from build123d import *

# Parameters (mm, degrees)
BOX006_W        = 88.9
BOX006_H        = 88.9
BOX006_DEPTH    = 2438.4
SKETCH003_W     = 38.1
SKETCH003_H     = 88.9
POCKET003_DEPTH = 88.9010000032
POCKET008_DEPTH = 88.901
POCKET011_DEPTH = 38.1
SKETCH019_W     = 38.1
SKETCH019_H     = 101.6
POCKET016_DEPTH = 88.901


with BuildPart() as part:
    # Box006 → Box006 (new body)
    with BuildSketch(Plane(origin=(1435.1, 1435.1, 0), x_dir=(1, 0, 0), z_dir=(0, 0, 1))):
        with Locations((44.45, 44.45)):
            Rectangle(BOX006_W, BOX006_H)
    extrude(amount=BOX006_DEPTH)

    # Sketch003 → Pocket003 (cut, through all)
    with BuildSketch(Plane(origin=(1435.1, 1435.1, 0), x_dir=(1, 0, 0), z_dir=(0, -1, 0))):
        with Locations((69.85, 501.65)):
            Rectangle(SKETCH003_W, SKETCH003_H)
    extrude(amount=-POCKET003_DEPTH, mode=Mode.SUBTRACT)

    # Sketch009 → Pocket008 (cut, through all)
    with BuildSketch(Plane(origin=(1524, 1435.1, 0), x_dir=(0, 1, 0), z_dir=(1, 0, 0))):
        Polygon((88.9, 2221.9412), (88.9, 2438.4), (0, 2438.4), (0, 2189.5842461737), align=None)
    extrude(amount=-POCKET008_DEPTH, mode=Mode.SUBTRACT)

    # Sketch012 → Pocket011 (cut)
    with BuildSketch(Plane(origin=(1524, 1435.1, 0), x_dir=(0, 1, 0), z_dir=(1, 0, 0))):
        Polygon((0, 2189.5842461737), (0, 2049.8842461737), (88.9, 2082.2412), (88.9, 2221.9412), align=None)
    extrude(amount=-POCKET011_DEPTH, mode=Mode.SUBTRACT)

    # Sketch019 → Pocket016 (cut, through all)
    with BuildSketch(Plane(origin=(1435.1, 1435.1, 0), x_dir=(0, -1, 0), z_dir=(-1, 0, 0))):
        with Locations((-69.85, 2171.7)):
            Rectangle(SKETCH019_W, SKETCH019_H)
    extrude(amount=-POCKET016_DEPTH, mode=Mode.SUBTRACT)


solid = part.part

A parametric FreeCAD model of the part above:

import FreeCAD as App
import Part
import Sketcher

V = App.Vector
Q = App.Units.Quantity


def add_polygon(sketch, points):
    """Adds a closed chain of lines whose ends are joined by coincident constraints."""
    first, n = sketch.GeometryCount, len(points)
    for a, b in zip(points, points[1:] + points[:1]):
        sketch.addGeometry(Part.LineSegment(App.Vector(*a, 0), App.Vector(*b, 0)), False)
    for i in range(n):
        sketch.addConstraint(Sketcher.Constraint("Coincident", first + i, 2, first + (i + 1) % n, 1))

doc = App.newDocument("Part")
body = doc.addObject("PartDesign::Body", "Body")

# Sketch on XY plane
sketch1 = body.newObject("Sketcher::SketchObject", "Sketch")
sketch1.AttachmentSupport = (doc.getObject("XY_Plane"), [""])
sketch1.MapMode = "FlatFace"
add_polygon(sketch1, [(1435, 1524), (1435, 1435), (1524, 1435), (1524, 1524)])  # lines 0-3
sketch1.addConstraint([
    Sketcher.Constraint("Vertical", 0),
    Sketcher.Constraint("Horizontal", 1),
    Sketcher.Constraint("Vertical", 2),
    Sketcher.Constraint("Horizontal", 3),
    Sketcher.Constraint("Equal", 3, 0),
    Sketcher.Constraint("DistanceX", 1, 1, 1, 2, Q("3.5 in")),
    Sketcher.Constraint("DistanceX", -1, 1, 1, 2, Q("60 in")),
    Sketcher.Constraint("DistanceY", -1, 1, 2, 2, Q("60 in")),
])
pad1 = body.newObject("PartDesign::Pad", "Pad")
pad1.Profile = sketch1
pad1.Length = Q("96 in")

# Sketch on XZ plane
sketch2 = body.newObject("Sketcher::SketchObject", "Sketch001")
sketch2.AttachmentSupport = (doc.getObject("XZ_Plane"), [""])
sketch2.MapMode = "FlatFace"
sketch2.AttachmentOffset = App.Placement(V(0, 0, -56.5 * 25.4), App.Rotation())
add_polygon(sketch2, [(1486, 546), (1486, 457), (1524, 457), (1524, 546)])  # lines 0-3
sketch2.addConstraint([
    Sketcher.Constraint("Vertical", 0),
    Sketcher.Constraint("Horizontal", 1),
    Sketcher.Constraint("Vertical", 2),
    Sketcher.Constraint("Horizontal", 3),
    Sketcher.Constraint("DistanceX", 1, 1, 1, 2, Q("1.5 in")),
    Sketcher.Constraint("DistanceY", 0, 2, 0, 1, Q("3.5 in")),
    Sketcher.Constraint("DistanceY", -1, 1, 0, 2, Q("18 in")),
    Sketcher.Constraint("DistanceX", -1, 1, 1, 2, Q("60 in")),
])
pocket1 = body.newObject("PartDesign::Pocket", "Pocket")
pocket1.Profile = sketch2
pocket1.Type = "ThroughAll"

# Sketch on YZ plane
sketch3 = body.newObject("Sketcher::SketchObject", "Sketch002")
sketch3.AttachmentSupport = (doc.getObject("YZ_Plane"), [""])
sketch3.MapMode = "FlatFace"
sketch3.AttachmentOffset = App.Placement(V(0, 0, 60 * 25.4), App.Rotation())
add_polygon(sketch3, [(1524, 2222), (1524, 2438), (1435, 2438), (1435, 2190)])  # lines 0-3
sketch3.addConstraint([
    Sketcher.Constraint("Vertical", 0),
    Sketcher.Constraint("Horizontal", 1),
    Sketcher.Constraint("Vertical", 2),
    Sketcher.Constraint("DistanceX", 1, 2, 1, 1, Q("3.5 in")),
    Sketcher.Constraint("DistanceX", -1, 1, 0, 2, Q("60 in")),
    Sketcher.Constraint("DistanceY", -1, 1, 0, 2, Q("96 in")),
    Sketcher.Constraint("Angle", 3, Q("20 deg")),
    Sketcher.Constraint("DistanceY", 0, 1, 0, 2, Q("8.522 in")),
])
pocket2 = body.newObject("PartDesign::Pocket", "Pocket001")
pocket2.Profile = sketch3
pocket2.Type = "ThroughAll"

# Sketch on YZ plane
sketch4 = body.newObject("Sketcher::SketchObject", "Sketch003")
sketch4.AttachmentSupport = (doc.getObject("YZ_Plane"), [""])
sketch4.MapMode = "FlatFace"
sketch4.AttachmentOffset = App.Placement(V(0, 0, 60 * 25.4), App.Rotation())
add_polygon(sketch4, [(1435, 2190), (1435, 2050), (1524, 2082), (1524, 2222)])  # lines 0-3
sketch4.addConstraint([
    Sketcher.Constraint("Vertical", 0),
    Sketcher.Constraint("Vertical", 2),
    Sketcher.Constraint("Parallel", 1, 3),
    Sketcher.Constraint("DistanceY", 0, 2, 0, 1, Q("5.5 in")),
    Sketcher.Constraint("DistanceX", -1, 1, 1, 2, Q("60 in")),
    Sketcher.Constraint("Angle", 1, Q("20 deg")),
    Sketcher.Constraint("DistanceX", -1, 1, 0, 2, Q("56.5 in")),
    Sketcher.Constraint("DistanceY", -1, 1, 1, 2, Q("81.978 in")),
])
pocket3 = body.newObject("PartDesign::Pocket", "Pocket002")
pocket3.Profile = sketch4
pocket3.Length = Q("1.5 in")

# Sketch on YZ plane
sketch5 = body.newObject("Sketcher::SketchObject", "Sketch004")
sketch5.AttachmentSupport = (doc.getObject("YZ_Plane"), [""])
sketch5.MapMode = "FlatFace"
sketch5.AttachmentOffset = App.Placement(V(0, 0, 56.5 * 25.4), App.Rotation())
add_polygon(sketch5, [(1524, 2222), (1524, 2121), (1486, 2121), (1486, 2222)])  # lines 0-3
sketch5.addConstraint([
    Sketcher.Constraint("Vertical", 0),
    Sketcher.Constraint("Horizontal", 1),
    Sketcher.Constraint("Vertical", 2),
    Sketcher.Constraint("Horizontal", 3),
    Sketcher.Constraint("DistanceY", 0, 2, 0, 1, Q("4 in")),
    Sketcher.Constraint("DistanceX", 1, 2, 1, 1, Q("1.5 in")),
    Sketcher.Constraint("DistanceX", -1, 1, 0, 2, Q("60 in")),
    Sketcher.Constraint("DistanceY", -1, 1, 0, 2, Q("83.5 in")),
])
pocket4 = body.newObject("PartDesign::Pocket", "Pocket003")
pocket4.Profile = sketch5
pocket4.Type = "ThroughAll"
pocket4.Reversed = True

doc.recompute()
